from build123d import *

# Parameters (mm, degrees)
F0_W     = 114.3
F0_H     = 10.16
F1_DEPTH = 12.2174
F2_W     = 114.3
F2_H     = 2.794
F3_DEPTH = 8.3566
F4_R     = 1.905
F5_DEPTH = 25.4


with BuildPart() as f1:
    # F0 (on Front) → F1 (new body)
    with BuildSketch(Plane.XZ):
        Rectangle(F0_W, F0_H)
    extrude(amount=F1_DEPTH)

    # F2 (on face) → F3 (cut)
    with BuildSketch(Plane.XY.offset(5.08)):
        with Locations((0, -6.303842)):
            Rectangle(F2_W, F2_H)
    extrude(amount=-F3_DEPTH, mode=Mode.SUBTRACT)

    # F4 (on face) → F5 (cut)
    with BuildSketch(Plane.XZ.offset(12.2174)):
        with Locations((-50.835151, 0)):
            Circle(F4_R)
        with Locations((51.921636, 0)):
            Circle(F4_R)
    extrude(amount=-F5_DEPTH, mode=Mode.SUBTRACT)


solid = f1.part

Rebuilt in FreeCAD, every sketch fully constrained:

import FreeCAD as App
import Part
import Sketcher
from FreeCAD import Vector
Q = App.Units.Quantity

doc = App.newDocument("Part")
body = doc.addObject("PartDesign::Body", "Body")

# Sketch on XZ plane
sketch1 = body.newObject("Sketcher::SketchObject", "Sketch")
sketch1.AttachmentSupport = (doc.getObject("XZ_Plane"), [""])
sketch1.MapMode = "FlatFace"
sketch1.addGeometry([
    Part.LineSegment(Vector(-57, 5, 0), Vector(-57, -5, 0)),
    Part.LineSegment(Vector(-57, -5, 0), Vector(57, -5, 0)),
    Part.LineSegment(Vector(57, -5, 0), Vector(57, 5, 0)),
    Part.LineSegment(Vector(57, 5, 0), Vector(-57, 5, 0)),
], False)
sketch1.addConstraint([
    Sketcher.Constraint("Coincident", 0, 2, 1, 1),
    Sketcher.Constraint("Coincident", 1, 2, 2, 1),
    Sketcher.Constraint("Coincident", 2, 2, 3, 1),
    Sketcher.Constraint("Coincident", 3, 2, 0, 1),
    Sketcher.Constraint("Vertical", 0),
    Sketcher.Constraint("Horizontal", 1),
    Sketcher.Constraint("Vertical", 2),
    Sketcher.Constraint("Horizontal", 3),
    Sketcher.Constraint("Symmetric", 0, 2, 2, 2, -1, 1),
    Sketcher.Constraint("DistanceX", 1, 1, 1, 2, Q("4.5 in")),
    Sketcher.Constraint("DistanceY", 0, 2, 0, 1, Q("0.4 in")),
])
pad1 = body.newObject("PartDesign::Pad", "Pad")
pad1.Profile = sketch1
pad1.Length = Q("0.481 in")

# Sketch on XY plane
sketch2 = body.newObject("Sketcher::SketchObject", "Sketch001")
sketch2.AttachmentSupport = (doc.getObject("XY_Plane"), [""])
sketch2.MapMode = "FlatFace"
sketch2.AttachmentOffset = App.Placement(Vector(0, 0, 0.2 * 25.4), App.Rotation())
sketch2.addGeometry([
    Part.LineSegment(Vector(-57.1, -4.9, 0), Vector(-57.1, -7.7, 0)),
    Part.LineSegment(Vector(-57.1, -7.7, 0), Vector(57.1, -7.7, 0)),
    Part.LineSegment(Vector(57.1, -7.7, 0), Vector(57.1, -4.9, 0)),
    Part.LineSegment(Vector(57.1, -4.9, 0), Vector(-57.1, -4.9, 0)),
], False)
sketch2.addConstraint([
    Sketcher.Constraint("Coincident", 0, 2, 1, 1),
    Sketcher.Constraint("Coincident", 1, 2, 2, 1),
    Sketcher.Constraint("Coincident", 2, 2, 3, 1),
    Sketcher.Constraint("Coincident", 3, 2, 0, 1),
    Sketcher.Constraint("Vertical", 0),
    Sketcher.Constraint("Horizontal", 1),
    Sketcher.Constraint("Vertical", 2),
    Sketcher.Constraint("Horizontal", 3),
    Sketcher.Constraint("DistanceX", 1, 1, 1, 2, Q("4.5 in")),
    Sketcher.Constraint("DistanceY", 0, 2, 0, 1, Q("0.11 in")),
    Sketcher.Constraint("DistanceX", 0, 2, -1, 1, Q("2.25 in")),
    Sketcher.Constraint("DistanceY", 0, 2, -1, 1, 7.700842),
])
pocket1 = body.newObject("PartDesign::Pocket", "Pocket")
pocket1.Profile = sketch2
pocket1.Length = Q("0.329 in")

# Sketch on XZ plane
sketch3 = body.newObject("Sketcher::SketchObject", "Sketch002")
sketch3.AttachmentSupport = (doc.getObject("XZ_Plane"), [""])
sketch3.MapMode = "FlatFace"
sketch3.AttachmentOffset = App.Placement(Vector(0, 0, 0.481 * 25.4), App.Rotation())
sketch3.addGeometry([
    Part.Circle(Vector(-50.8, 0, 0), Vector(0, 0, 1), 1.9),
    Part.Circle(Vector(51.9, 0, 0), Vector(0, 0, 1), 1.9),
], False)
sketch3.addConstraint([
    Sketcher.Constraint("Equal", 0, 1),
    Sketcher.Constraint("PointOnObject", 0, 3, -1),
    Sketcher.Constraint("PointOnObject", 1, 3, -1),
    Sketcher.Constraint("Diameter", 0, Q("0.15 in")),
    Sketcher.Constraint("DistanceX", 0, 3, -1, 1, 50.835151),
    Sketcher.Constraint("DistanceX", -1, 1, 1, 3, 51.921636),
])
pocket2 = body.newObject("PartDesign::Pocket", "Pocket001")
pocket2.Profile = sketch3
pocket2.Length = Q("1 in")

doc.recompute()
